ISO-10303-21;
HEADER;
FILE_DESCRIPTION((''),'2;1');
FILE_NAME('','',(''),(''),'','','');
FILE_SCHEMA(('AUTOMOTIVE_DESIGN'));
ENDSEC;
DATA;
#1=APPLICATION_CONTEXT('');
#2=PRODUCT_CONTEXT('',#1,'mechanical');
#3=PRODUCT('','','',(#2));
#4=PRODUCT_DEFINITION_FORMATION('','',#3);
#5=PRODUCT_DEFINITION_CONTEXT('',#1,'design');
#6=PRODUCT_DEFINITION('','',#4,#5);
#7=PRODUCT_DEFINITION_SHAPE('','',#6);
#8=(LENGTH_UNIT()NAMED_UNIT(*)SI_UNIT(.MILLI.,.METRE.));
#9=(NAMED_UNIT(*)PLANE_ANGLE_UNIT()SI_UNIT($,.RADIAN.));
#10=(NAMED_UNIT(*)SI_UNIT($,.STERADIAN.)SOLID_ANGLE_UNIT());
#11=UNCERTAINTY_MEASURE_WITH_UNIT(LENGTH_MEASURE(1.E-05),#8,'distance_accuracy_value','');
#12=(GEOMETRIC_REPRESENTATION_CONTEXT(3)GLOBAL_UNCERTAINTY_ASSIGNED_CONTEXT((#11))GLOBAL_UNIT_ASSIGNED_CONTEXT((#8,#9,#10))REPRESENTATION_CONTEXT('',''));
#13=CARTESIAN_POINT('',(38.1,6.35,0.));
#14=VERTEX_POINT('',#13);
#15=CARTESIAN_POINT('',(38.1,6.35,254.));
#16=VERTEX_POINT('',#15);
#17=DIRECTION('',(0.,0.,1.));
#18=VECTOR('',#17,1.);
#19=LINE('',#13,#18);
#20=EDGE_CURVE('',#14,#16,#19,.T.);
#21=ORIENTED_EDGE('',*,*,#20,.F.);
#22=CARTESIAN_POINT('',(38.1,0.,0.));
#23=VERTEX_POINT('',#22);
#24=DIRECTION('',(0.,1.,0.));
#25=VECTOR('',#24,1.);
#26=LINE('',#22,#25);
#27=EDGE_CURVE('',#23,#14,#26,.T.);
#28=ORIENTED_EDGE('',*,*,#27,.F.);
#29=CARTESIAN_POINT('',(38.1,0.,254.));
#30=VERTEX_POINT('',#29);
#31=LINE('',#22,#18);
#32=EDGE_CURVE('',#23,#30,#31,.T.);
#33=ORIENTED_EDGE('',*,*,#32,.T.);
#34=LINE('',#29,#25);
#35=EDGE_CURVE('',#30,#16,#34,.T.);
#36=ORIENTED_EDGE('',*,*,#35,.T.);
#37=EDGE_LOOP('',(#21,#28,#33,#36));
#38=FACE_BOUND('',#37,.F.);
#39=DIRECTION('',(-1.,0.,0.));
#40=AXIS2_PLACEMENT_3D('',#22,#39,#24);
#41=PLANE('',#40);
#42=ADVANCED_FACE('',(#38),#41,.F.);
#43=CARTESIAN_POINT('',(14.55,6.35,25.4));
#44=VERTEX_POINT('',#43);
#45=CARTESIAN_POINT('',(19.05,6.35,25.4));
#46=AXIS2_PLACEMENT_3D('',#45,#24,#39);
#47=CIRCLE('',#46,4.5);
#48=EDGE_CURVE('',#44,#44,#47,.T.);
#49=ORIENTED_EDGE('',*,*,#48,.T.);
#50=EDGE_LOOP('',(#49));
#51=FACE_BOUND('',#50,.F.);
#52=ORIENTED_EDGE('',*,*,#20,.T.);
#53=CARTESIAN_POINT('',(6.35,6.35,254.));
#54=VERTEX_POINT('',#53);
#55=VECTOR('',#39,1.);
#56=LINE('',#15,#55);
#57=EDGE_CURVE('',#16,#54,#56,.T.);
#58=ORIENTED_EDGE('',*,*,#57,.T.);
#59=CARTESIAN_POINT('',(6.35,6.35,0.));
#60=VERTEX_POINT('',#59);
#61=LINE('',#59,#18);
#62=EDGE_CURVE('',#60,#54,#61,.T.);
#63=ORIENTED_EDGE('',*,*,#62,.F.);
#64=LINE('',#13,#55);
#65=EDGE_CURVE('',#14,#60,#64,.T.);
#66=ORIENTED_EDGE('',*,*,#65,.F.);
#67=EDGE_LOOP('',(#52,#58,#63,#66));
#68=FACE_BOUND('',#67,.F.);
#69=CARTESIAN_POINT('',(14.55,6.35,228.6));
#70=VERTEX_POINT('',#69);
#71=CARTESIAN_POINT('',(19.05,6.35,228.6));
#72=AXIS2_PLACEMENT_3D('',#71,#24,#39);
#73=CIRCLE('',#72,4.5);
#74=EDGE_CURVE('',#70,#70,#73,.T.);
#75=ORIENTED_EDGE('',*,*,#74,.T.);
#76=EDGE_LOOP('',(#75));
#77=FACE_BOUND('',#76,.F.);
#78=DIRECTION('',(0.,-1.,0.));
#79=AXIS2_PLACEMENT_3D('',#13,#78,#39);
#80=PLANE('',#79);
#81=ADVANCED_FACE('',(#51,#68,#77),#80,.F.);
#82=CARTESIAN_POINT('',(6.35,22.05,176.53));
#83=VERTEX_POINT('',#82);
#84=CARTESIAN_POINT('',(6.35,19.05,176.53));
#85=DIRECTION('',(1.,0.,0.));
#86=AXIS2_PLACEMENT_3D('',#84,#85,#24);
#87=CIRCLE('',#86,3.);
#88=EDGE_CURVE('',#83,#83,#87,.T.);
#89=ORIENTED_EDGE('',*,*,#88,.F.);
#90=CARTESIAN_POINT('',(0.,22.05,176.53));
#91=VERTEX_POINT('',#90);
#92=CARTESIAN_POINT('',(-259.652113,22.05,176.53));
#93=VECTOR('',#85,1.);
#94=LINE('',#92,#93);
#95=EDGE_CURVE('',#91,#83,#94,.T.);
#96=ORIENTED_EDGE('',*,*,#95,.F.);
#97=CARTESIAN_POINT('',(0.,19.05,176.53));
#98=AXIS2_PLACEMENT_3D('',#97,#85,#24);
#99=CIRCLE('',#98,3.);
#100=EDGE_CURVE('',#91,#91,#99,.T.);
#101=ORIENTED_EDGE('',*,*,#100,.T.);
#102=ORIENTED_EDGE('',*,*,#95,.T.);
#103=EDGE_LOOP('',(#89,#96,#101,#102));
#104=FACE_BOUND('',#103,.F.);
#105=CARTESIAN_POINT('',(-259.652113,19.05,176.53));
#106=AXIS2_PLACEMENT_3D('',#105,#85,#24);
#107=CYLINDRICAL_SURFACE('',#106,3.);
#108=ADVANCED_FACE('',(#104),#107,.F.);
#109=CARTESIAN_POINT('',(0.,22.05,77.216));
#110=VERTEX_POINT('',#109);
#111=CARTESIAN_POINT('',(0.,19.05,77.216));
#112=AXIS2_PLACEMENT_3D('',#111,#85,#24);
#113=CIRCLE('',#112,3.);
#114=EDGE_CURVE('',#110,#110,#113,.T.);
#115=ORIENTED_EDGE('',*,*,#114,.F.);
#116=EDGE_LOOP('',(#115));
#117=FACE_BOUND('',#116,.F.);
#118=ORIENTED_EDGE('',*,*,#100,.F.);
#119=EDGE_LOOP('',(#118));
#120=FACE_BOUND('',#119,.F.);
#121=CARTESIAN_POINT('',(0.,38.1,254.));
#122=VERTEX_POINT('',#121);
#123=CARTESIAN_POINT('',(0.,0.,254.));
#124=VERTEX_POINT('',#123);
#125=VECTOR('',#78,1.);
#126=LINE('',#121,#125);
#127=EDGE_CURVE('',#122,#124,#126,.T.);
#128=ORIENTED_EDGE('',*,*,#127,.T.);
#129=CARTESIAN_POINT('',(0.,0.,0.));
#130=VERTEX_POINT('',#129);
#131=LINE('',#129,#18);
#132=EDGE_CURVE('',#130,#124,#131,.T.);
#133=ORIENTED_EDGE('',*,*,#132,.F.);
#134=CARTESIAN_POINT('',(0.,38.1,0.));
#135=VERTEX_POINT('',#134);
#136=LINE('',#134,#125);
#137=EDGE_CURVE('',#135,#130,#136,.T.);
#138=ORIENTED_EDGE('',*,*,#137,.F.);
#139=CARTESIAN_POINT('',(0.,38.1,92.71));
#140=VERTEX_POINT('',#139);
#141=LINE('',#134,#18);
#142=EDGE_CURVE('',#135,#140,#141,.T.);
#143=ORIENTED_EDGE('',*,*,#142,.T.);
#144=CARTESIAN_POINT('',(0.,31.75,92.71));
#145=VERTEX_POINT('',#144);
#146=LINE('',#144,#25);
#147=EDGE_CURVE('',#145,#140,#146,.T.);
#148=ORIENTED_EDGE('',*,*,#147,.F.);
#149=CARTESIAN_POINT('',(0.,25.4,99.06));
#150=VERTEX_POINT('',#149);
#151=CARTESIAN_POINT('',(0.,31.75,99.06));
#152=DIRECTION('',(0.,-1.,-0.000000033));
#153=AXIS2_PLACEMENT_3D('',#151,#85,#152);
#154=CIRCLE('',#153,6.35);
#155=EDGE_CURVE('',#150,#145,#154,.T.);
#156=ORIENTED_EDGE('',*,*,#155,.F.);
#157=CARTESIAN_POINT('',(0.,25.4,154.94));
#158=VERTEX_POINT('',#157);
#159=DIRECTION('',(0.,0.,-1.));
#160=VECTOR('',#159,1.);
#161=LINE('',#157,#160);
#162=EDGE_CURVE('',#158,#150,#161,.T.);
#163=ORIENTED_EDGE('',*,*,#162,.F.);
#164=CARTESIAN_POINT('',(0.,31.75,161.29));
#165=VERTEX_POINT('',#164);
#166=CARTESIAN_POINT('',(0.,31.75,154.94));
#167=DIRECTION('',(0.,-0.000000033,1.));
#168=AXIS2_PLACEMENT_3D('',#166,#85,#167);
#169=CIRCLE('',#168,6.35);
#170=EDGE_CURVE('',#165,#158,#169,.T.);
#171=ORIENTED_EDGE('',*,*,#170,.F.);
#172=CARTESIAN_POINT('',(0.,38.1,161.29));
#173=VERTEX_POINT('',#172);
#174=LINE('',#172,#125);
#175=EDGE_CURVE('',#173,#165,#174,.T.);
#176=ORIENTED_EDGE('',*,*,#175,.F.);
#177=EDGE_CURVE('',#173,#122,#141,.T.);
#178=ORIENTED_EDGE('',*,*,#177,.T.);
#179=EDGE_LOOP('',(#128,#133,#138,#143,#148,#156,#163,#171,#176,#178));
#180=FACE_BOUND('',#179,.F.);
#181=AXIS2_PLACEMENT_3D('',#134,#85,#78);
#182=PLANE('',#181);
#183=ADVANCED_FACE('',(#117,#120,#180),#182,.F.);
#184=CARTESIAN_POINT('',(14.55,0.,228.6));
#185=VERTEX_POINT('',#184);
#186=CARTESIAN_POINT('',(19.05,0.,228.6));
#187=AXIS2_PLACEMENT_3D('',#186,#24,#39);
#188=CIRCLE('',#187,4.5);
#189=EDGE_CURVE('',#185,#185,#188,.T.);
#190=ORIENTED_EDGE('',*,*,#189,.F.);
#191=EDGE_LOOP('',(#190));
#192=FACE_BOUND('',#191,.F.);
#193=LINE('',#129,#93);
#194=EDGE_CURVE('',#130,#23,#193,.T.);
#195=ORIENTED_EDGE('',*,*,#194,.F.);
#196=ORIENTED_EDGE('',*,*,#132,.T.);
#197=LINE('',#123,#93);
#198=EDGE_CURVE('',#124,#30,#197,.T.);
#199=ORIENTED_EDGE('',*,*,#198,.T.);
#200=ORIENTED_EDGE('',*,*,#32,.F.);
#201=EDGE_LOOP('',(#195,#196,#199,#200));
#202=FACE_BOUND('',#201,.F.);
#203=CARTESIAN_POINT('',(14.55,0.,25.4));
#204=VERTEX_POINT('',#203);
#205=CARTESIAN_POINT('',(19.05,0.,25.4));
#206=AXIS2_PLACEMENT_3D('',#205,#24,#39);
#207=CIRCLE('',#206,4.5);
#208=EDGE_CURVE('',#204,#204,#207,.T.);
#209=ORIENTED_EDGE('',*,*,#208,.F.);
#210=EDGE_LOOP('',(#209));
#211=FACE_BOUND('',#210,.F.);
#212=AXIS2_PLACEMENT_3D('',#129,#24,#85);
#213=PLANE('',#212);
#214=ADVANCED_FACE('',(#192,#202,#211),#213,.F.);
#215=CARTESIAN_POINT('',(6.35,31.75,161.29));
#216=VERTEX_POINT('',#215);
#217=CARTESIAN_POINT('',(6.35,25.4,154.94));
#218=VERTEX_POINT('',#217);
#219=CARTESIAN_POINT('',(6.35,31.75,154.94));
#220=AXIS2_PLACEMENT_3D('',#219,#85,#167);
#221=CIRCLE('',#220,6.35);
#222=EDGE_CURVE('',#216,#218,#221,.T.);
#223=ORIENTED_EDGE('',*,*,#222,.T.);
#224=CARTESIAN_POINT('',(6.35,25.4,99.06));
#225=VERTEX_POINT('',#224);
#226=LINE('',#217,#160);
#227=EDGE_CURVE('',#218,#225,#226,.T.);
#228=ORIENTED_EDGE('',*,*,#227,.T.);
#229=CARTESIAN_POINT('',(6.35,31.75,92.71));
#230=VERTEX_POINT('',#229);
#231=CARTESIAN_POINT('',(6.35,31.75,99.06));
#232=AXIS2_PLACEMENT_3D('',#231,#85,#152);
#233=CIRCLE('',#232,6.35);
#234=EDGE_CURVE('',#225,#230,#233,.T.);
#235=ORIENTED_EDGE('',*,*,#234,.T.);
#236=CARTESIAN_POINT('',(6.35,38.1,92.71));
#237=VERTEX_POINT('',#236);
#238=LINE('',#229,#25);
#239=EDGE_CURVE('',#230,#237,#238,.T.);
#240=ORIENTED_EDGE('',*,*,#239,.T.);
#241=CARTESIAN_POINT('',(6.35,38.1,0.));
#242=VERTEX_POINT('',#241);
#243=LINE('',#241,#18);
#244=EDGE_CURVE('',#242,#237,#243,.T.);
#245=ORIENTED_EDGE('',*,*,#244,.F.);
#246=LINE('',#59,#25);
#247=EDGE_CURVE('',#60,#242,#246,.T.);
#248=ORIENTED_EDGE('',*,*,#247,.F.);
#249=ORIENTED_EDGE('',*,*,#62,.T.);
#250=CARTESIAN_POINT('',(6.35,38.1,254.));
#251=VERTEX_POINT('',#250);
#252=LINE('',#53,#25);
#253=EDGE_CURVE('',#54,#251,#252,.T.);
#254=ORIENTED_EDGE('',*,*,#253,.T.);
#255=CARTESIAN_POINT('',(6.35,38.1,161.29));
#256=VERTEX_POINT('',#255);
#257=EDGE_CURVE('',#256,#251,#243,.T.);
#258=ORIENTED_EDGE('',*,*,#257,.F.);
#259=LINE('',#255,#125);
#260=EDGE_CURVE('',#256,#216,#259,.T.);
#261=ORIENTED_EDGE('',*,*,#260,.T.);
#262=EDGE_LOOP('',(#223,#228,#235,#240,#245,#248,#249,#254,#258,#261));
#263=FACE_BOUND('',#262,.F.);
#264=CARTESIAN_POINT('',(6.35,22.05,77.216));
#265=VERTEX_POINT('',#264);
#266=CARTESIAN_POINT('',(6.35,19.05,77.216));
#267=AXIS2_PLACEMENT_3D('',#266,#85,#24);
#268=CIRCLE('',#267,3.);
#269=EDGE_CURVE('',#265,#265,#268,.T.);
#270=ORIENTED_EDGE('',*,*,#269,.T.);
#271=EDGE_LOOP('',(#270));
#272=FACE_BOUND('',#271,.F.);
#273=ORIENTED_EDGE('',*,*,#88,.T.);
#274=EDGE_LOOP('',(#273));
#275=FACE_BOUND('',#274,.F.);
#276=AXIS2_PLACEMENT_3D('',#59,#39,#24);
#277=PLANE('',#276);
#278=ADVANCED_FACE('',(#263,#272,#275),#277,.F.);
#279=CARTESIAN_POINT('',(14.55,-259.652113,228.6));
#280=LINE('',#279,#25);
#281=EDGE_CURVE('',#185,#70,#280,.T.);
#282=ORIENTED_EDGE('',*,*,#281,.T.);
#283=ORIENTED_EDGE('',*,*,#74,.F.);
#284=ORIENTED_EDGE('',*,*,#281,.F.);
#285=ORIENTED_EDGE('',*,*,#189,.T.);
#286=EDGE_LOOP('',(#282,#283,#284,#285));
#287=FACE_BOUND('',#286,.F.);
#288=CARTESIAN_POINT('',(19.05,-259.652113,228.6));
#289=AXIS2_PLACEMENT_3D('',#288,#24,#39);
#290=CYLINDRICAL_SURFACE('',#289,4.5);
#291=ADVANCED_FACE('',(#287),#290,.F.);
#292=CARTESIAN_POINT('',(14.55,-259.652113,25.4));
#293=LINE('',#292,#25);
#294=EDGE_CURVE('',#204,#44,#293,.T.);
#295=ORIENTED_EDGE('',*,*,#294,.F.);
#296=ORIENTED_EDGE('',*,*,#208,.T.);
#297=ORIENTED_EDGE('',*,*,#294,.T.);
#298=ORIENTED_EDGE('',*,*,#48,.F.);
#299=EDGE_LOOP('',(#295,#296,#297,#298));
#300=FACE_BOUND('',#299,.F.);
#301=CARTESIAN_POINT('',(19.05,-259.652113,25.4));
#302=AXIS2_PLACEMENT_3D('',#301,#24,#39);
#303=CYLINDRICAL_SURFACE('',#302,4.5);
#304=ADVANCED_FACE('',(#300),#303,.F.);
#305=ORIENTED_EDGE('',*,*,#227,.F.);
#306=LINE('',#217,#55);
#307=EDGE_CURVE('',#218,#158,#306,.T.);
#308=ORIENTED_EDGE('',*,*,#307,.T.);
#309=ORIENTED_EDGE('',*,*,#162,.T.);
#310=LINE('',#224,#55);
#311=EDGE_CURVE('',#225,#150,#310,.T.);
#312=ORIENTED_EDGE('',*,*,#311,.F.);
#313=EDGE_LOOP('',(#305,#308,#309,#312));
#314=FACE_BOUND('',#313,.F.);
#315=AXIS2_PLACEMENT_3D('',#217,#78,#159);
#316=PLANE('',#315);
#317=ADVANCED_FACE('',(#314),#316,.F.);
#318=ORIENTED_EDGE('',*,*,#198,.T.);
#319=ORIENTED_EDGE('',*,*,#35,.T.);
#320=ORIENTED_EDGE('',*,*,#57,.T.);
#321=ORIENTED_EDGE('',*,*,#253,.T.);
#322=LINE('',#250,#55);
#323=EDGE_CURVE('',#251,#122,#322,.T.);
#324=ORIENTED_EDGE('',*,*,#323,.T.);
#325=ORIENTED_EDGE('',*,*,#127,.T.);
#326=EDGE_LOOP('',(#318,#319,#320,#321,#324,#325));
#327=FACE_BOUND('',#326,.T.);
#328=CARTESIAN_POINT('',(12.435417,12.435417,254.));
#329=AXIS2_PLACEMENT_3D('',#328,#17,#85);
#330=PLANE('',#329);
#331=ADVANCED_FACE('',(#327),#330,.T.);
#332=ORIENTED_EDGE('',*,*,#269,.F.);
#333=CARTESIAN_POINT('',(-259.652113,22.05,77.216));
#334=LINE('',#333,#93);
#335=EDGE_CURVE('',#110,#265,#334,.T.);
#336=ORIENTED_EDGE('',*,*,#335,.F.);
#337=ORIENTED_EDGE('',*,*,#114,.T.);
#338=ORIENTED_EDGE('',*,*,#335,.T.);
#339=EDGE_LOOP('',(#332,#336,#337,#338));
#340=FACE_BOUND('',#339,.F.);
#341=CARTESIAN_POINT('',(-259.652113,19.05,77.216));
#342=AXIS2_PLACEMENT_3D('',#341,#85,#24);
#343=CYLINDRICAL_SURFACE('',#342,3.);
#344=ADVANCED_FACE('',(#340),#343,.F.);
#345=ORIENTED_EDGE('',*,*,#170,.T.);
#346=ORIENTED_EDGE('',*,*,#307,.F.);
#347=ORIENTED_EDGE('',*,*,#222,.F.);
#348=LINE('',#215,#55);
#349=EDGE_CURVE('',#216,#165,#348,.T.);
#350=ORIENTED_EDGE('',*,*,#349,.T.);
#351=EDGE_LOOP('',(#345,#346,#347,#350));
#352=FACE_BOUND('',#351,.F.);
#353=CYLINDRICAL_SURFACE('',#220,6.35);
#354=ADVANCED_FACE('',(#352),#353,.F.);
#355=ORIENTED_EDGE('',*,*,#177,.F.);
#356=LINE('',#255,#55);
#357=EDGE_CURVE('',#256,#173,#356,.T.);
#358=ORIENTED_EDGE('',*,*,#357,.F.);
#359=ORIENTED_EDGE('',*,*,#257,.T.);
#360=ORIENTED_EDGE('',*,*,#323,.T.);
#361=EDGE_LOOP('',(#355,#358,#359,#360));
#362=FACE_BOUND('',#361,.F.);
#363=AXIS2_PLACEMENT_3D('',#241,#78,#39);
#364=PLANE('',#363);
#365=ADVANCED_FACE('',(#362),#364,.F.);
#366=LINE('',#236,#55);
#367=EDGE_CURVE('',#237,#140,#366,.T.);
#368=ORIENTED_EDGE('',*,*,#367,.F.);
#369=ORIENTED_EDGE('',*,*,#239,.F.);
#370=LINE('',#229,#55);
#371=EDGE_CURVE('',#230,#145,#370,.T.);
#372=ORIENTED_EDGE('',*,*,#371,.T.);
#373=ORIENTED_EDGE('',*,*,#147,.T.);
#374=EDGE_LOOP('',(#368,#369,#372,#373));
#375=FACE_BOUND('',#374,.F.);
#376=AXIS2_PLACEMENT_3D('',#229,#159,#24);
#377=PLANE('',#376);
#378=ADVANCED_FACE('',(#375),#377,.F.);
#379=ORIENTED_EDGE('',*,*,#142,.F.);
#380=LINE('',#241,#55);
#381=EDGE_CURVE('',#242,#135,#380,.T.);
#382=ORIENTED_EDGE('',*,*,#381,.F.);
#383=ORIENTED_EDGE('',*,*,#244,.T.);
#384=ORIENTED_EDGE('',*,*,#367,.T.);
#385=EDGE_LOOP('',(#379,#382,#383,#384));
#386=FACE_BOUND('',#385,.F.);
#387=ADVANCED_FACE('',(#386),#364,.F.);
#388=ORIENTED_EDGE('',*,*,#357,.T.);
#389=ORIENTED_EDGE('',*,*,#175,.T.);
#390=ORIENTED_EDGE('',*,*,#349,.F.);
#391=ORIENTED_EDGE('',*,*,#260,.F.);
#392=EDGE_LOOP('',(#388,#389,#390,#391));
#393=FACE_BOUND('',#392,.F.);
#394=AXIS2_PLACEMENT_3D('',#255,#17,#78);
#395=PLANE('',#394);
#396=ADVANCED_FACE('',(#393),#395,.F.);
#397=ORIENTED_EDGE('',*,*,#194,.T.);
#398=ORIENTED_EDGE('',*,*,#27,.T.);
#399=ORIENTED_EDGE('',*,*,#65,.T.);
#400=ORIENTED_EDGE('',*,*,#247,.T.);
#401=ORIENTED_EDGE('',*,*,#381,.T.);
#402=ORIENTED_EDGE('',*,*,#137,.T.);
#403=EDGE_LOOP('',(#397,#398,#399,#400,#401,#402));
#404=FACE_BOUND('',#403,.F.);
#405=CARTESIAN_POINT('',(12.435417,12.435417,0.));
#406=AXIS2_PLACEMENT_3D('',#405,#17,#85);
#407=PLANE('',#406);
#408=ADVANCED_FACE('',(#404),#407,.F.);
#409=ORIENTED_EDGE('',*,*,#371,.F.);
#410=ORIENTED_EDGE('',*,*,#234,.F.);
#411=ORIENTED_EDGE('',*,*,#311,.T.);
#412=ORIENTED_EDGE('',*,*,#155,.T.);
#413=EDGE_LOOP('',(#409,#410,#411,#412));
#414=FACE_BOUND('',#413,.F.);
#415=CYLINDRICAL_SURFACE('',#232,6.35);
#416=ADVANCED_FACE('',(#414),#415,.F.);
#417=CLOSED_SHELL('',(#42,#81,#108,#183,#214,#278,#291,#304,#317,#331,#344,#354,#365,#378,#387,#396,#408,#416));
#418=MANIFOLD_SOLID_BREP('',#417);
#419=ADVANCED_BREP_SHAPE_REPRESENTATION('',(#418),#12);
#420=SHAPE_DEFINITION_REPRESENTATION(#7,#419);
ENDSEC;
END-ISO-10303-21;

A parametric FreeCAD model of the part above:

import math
import FreeCAD as App
import Part
import Sketcher
from FreeCAD import Vector
Q = App.Units.Quantity

doc = App.newDocument("Part")
body = doc.addObject("PartDesign::Body", "Body")

# Sketch on XY plane
sketch1 = body.newObject("Sketcher::SketchObject", "Sketch")
sketch1.AttachmentSupport = (doc.getObject("XY_Plane"), [""])
sketch1.MapMode = "FlatFace"
sketch1.addGeometry([
    Part.LineSegment(Vector(0, 38, 0), Vector(0, 0, 0)),  # 0
    Part.LineSegment(Vector(0, 0, 0), Vector(38, 0, 0)),  # 1
    Part.LineSegment(Vector(38, 0, 0), Vector(38, 6, 0)),  # 2
    Part.LineSegment(Vector(38, 6, 0), Vector(6, 6, 0)),  # 3
    Part.LineSegment(Vector(6, 6, 0), Vector(6, 38, 0)),  # 4
    Part.LineSegment(Vector(6, 38, 0), Vector(0, 38, 0)),  # 5
], False)
sketch1.addConstraint([
    Sketcher.Constraint("Coincident", 0, 2, 1, 1),
    Sketcher.Constraint("Coincident", 1, 2, 2, 1),
    Sketcher.Constraint("Coincident", 2, 2, 3, 1),
    Sketcher.Constraint("Coincident", 3, 2, 4, 1),
    Sketcher.Constraint("Coincident", 4, 2, 5, 1),
    Sketcher.Constraint("Coincident", 5, 2, 0, 1),
    Sketcher.Constraint("Vertical", 0),
    Sketcher.Constraint("Horizontal", 1),
    Sketcher.Constraint("Vertical", 2),
    Sketcher.Constraint("Horizontal", 3),
    Sketcher.Constraint("Vertical", 4),
    Sketcher.Constraint("Horizontal", 5),
    Sketcher.Constraint("Coincident", 0, 2, -1, 1),
    Sketcher.Constraint("Equal", 1, 0),
    Sketcher.Constraint("Equal", 5, 2),
    Sketcher.Constraint("DistanceX", 1, 1, 1, 2, Q("1.5 in")),
    Sketcher.Constraint("DistanceX", 3, 2, 3, 1, Q("1.25 in")),
])
pad1 = body.newObject("PartDesign::Pad", "Pad")
pad1.Profile = sketch1
pad1.Length = Q("10 in")

# Sketch on XZ plane
sketch2 = body.newObject("Sketcher::SketchObject", "Sketch001")
sketch2.AttachmentSupport = (doc.getObject("XZ_Plane"), [""])
sketch2.MapMode = "FlatFace"
sketch2.addGeometry(Part.Circle(Vector(19.1, 228.6, 0), Vector(0, 0, 1), 4.5), False)
sketch2.addConstraint([
    Sketcher.Constraint("DistanceY", -1, 1, 0, 3, Q("9 in")),
    Sketcher.Constraint("Diameter", 0, Q("9 mm")),
    Sketcher.Constraint("DistanceX", -1, 1, 0, 3, Q("0.75 in")),
])
doc.recompute()
hole = body.newObject("PartDesign::Hole", "Hole")
hole.Profile = sketch2
hole.ThreadType = "None"
hole.Diameter = 9
hole.DepthType = "ThroughAll"

# Sketch on XZ plane
sketch3 = body.newObject("Sketcher::SketchObject", "Sketch002")
sketch3.AttachmentSupport = (doc.getObject("XZ_Plane"), [""])
sketch3.MapMode = "FlatFace"
sketch3.addGeometry(Part.Circle(Vector(19.1, 25.4, 0), Vector(0, 0, 1), 4.5), False)
sketch3.addConstraint([
    Sketcher.Constraint("DistanceY", -1, 1, 0, 3, Q("1 in")),
    Sketcher.Constraint("Diameter", 0, Q("9 mm")),
    Sketcher.Constraint("DistanceX", -1, 1, 0, 3, Q("0.75 in")),
])
doc.recompute()
hole2 = body.newObject("PartDesign::Hole", "Hole001")
hole2.Profile = sketch3
hole2.ThreadType = "None"
hole2.Diameter = 9
hole2.DepthType = "ThroughAll"

# Sketch on YZ plane
sketch4 = body.newObject("Sketcher::SketchObject", "Sketch003")
sketch4.AttachmentSupport = (doc.getObject("YZ_Plane"), [""])
sketch4.MapMode = "FlatFace"
sketch4.addGeometry([
    Part.Circle(Vector(19.1, 77.2, 0), Vector(0, 0, 1), 3),
    Part.Circle(Vector(19.1, 176.5, 0), Vector(0, 0, 1), 3),
], False)
sketch4.addConstraint([
    Sketcher.Constraint("Equal", 0, 1),
    Sketcher.Constraint("Vertical", 0, 3, 1, 3),
    Sketcher.Constraint("Diameter", 0, Q("6 mm")),
    Sketcher.Constraint("DistanceX", -1, 1, 0, 3, Q("0.75 in")),
    Sketcher.Constraint("DistanceY", -1, 1, 0, 3, Q("3.04 in")),
    Sketcher.Constraint("DistanceY", -1, 1, 1, 3, Q("6.95 in")),
])
doc.recompute()
hole3 = body.newObject("PartDesign::Hole", "Hole002")
hole3.Profile = sketch4
hole3.ThreadType = "None"
hole3.Diameter = 6
hole3.DepthType = "ThroughAll"
hole3.Reversed = True

# Sketch on YZ plane
sketch5 = body.newObject("Sketcher::SketchObject", "Sketch004")
sketch5.AttachmentSupport = (doc.getObject("YZ_Plane"), [""])
sketch5.MapMode = "FlatFace"
sketch5.AttachmentOffset = App.Placement(Vector(0, 0, 0.25 * 25.4), App.Rotation())
sketch5.addGeometry([
    Part.ArcOfCircle(Part.Circle(Vector(32, 155, 0), Vector(0, 0, 1), 6), math.radians(90), math.radians(180)),  # 0
    Part.LineSegment(Vector(25, 155, 0), Vector(25, 99, 0)),  # 1
    Part.ArcOfCircle(Part.Circle(Vector(32, 99, 0), Vector(0, 0, 1), 6), math.radians(-180), math.radians(-90)),  # 2
    Part.LineSegment(Vector(32, 93, 0), Vector(38, 93, 0)),  # 3
    Part.LineSegment(Vector(38, 93, 0), Vector(38, 161, 0)),  # 4
    Part.LineSegment(Vector(38, 161, 0), Vector(32, 161, 0)),  # 5
], False)
sketch5.addConstraint([
    Sketcher.Constraint("Tangent", 0, 2, 1, 1),
    Sketcher.Constraint("Tangent", 1, 2, 2, 1),
    Sketcher.Constraint("Tangent", 2, 2, 3, 1),
    Sketcher.Constraint("Coincident", 3, 2, 4, 1),
    Sketcher.Constraint("Coincident", 4, 2, 5, 1),
    Sketcher.Constraint("Tangent", 5, 2, 0, 1),
    Sketcher.Constraint("Vertical", 1),
    Sketcher.Constraint("Horizontal", 3),
    Sketcher.Constraint("Vertical", 4),
    Sketcher.Constraint("Horizontal", 5),
    Sketcher.Constraint("Equal", 0, 2),
    Sketcher.Constraint("Radius", 0, Q("0.25 in")),
    Sketcher.Constraint("DistanceY", 1, 2, 1, 1, Q("2.2 in")),
    Sketcher.Constraint("DistanceX", -1, 1, 0, 2, Q("1 in")),
    Sketcher.Constraint("DistanceX", 3, 1, 3, 2, Q("0.25 in")),
    Sketcher.Constraint("DistanceY", -1, 1, 0, 3, Q("6.1 in")),
])
pocket1 = body.newObject("PartDesign::Pocket", "Pocket")
pocket1.Profile = sketch5
pocket1.Type = "ThroughAll"

doc.recompute()
